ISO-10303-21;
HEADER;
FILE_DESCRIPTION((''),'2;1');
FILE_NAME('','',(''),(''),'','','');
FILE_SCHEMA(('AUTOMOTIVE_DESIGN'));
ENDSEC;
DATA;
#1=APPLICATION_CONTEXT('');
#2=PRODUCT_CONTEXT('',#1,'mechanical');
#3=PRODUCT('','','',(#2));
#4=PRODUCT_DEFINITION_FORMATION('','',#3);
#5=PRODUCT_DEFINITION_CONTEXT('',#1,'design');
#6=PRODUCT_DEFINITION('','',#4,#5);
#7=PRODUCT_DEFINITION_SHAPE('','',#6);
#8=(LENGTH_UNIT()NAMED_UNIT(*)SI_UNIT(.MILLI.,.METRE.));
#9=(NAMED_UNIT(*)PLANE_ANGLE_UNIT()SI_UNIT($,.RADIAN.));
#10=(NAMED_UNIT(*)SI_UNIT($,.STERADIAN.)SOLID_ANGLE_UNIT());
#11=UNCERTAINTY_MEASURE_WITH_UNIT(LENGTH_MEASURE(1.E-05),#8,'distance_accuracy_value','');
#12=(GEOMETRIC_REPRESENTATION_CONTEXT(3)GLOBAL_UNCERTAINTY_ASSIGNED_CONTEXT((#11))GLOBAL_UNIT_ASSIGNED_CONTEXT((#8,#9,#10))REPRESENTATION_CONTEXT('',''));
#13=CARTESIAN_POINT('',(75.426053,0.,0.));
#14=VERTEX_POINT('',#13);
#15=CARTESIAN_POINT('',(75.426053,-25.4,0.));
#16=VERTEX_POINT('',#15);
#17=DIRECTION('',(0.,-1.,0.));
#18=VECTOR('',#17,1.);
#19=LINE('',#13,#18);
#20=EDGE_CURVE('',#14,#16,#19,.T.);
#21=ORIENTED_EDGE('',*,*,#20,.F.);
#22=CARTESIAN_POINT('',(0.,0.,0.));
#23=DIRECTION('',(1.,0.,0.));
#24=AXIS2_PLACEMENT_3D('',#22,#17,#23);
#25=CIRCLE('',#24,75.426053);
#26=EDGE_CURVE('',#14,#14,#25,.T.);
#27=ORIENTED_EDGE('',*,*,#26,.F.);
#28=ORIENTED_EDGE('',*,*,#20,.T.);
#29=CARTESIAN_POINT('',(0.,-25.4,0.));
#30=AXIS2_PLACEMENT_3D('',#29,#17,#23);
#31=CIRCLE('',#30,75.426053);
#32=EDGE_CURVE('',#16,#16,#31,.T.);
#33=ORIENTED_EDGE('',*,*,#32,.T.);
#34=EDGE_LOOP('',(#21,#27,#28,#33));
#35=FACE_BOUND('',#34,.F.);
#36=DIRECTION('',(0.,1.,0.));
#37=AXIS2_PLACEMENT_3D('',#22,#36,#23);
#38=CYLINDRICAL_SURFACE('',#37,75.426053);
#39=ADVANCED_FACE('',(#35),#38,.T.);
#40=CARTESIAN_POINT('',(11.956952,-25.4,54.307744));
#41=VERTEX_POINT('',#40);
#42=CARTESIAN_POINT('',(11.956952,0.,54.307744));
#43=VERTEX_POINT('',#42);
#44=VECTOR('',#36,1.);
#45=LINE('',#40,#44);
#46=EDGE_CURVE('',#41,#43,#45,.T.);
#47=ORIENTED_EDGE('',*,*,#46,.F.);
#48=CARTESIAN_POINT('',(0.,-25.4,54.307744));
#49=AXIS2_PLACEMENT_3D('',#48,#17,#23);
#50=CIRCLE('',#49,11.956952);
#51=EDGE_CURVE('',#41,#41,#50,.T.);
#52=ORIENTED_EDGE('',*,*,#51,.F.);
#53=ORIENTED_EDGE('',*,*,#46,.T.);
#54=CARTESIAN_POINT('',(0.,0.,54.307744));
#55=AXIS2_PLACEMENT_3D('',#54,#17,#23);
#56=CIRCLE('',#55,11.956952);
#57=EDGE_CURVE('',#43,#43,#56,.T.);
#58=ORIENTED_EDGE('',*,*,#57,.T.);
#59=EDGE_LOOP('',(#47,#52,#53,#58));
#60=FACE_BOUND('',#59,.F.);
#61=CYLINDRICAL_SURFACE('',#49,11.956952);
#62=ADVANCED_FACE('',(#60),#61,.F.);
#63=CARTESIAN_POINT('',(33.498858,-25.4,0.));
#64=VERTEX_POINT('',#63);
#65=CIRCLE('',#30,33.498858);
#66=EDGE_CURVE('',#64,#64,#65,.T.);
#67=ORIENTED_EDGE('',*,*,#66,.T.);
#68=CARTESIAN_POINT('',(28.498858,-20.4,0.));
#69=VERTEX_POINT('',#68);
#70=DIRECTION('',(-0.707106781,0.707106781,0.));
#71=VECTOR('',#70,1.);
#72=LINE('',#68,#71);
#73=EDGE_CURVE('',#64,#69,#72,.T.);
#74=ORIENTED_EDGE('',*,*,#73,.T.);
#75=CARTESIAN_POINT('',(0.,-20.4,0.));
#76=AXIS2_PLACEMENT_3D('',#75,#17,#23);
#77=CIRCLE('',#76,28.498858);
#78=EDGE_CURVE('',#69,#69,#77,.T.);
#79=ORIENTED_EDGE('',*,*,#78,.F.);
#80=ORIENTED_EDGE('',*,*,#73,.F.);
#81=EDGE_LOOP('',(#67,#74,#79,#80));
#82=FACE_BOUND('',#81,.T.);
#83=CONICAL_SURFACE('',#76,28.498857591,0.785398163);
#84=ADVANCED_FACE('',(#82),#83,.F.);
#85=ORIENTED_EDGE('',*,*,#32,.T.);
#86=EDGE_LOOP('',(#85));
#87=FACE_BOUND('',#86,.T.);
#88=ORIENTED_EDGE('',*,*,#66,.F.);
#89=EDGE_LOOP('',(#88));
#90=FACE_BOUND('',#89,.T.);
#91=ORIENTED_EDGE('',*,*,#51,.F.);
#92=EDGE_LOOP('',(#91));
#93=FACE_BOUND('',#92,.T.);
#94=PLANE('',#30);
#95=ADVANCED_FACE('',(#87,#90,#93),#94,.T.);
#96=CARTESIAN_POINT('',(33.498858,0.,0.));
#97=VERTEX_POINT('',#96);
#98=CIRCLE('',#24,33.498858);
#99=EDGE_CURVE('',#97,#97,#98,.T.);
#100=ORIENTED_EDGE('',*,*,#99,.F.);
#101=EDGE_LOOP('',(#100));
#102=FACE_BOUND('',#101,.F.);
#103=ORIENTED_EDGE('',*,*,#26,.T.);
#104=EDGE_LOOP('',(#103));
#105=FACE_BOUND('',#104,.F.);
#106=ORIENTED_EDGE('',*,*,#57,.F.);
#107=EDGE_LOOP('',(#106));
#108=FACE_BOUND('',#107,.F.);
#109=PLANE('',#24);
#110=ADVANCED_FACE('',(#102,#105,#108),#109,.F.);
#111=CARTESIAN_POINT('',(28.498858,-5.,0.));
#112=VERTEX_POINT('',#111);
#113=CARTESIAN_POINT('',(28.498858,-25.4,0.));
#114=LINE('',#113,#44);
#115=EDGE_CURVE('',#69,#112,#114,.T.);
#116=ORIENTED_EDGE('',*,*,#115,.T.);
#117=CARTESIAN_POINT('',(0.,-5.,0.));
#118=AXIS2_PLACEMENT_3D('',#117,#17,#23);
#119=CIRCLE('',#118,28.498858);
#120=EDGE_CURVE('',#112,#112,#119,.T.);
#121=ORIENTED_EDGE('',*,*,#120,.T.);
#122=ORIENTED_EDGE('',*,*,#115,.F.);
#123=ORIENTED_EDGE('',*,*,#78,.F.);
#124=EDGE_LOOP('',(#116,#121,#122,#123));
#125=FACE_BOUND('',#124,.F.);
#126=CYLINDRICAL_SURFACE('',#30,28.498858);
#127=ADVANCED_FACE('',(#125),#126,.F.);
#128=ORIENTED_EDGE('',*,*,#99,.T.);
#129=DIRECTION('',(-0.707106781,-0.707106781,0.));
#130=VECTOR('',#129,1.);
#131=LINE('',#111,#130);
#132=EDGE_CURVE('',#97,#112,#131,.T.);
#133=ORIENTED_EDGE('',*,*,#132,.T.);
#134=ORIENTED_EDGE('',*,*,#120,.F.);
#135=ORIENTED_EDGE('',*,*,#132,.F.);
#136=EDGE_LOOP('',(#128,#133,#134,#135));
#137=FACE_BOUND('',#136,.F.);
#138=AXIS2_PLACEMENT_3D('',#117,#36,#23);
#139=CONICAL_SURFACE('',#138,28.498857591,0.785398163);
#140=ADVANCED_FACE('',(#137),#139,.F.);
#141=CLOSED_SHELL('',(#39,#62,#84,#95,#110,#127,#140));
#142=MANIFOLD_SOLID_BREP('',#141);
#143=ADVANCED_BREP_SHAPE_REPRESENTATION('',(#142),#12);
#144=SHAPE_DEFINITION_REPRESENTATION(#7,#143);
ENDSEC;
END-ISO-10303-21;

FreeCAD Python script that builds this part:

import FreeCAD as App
import Part
import Sketcher
from FreeCAD import Vector


def edges_at(feature, points):
    """Names of the edges that pass closest to the given points."""
    edges = feature.Shape.Edges
    near = lambda p: min(range(len(edges)), key=lambda i: edges[i].distToShape(Part.Vertex(*p))[0])
    return sorted({f"Edge{near(p) + 1}" for p in points})

doc = App.newDocument("Part")
body = doc.addObject("PartDesign::Body", "Body")

# Sketch on XZ plane
sketch1 = body.newObject("Sketcher::SketchObject", "Sketch")
sketch1.AttachmentSupport = (doc.getObject("XZ_Plane"), [""])
sketch1.MapMode = "FlatFace"
sketch1.addGeometry(Part.Circle(Vector(0, 0, 0), Vector(0, 0, 1), 75), False)
sketch1.addConstraint(Sketcher.Constraint("Coincident", 0, 3, -1, 1))
sketch1.addConstraint(Sketcher.Constraint("Diameter", 0, 150.852106))
pad1 = body.newObject("PartDesign::Pad", "Pad")
pad1.Profile = sketch1
pad1.Length = 25.4

# Sketch on XZ plane
sketch2 = body.newObject("Sketcher::SketchObject", "Sketch001")
sketch2.AttachmentSupport = (doc.getObject("XZ_Plane"), [""])
sketch2.MapMode = "FlatFace"
sketch2.AttachmentOffset = App.Placement(Vector(0, 0, 25.4), App.Rotation())
sketch2.addGeometry(Part.Circle(Vector(0, 0, 0), Vector(0, 0, 1), 28), False)
sketch2.addConstraint(Sketcher.Constraint("Coincident", 0, 3, -1, 1))
sketch2.addConstraint(Sketcher.Constraint("Diameter", 0, 56.997715))
pocket1 = body.newObject("PartDesign::Pocket", "Pocket")
pocket1.Profile = sketch2
pocket1.Length = 80.494715
doc.recompute()

chamfer = body.newObject("PartDesign::Chamfer", "Chamfer")
chamfer.Base = (pocket1, edges_at(pocket1, [(-28.499, -25.4, 0), (28.499, -12.7, 0), (-28.499, 0, 0)]))
chamfer.Size = 5

# Sketch on XZ plane
sketch3 = body.newObject("Sketcher::SketchObject", "Sketch002")
sketch3.AttachmentSupport = (doc.getObject("XZ_Plane"), [""])
sketch3.MapMode = "FlatFace"
sketch3.AttachmentOffset = App.Placement(Vector(0, 0, 25.4), App.Rotation())
sketch3.addGeometry(Part.Circle(Vector(0, 54, 0), Vector(0, 0, 1), 12), False)
sketch3.addConstraint(Sketcher.Constraint("PointOnObject", 0, 3, -2))
sketch3.addConstraint(Sketcher.Constraint("Diameter", 0, 23.913904))
sketch3.addConstraint(Sketcher.Constraint("DistanceY", -1, 1, 0, 3, 54.307744))
pocket2 = body.newObject("PartDesign::Pocket", "Pocket001")
pocket2.Profile = sketch3
pocket2.Type = "ThroughAll"

doc.recompute()
